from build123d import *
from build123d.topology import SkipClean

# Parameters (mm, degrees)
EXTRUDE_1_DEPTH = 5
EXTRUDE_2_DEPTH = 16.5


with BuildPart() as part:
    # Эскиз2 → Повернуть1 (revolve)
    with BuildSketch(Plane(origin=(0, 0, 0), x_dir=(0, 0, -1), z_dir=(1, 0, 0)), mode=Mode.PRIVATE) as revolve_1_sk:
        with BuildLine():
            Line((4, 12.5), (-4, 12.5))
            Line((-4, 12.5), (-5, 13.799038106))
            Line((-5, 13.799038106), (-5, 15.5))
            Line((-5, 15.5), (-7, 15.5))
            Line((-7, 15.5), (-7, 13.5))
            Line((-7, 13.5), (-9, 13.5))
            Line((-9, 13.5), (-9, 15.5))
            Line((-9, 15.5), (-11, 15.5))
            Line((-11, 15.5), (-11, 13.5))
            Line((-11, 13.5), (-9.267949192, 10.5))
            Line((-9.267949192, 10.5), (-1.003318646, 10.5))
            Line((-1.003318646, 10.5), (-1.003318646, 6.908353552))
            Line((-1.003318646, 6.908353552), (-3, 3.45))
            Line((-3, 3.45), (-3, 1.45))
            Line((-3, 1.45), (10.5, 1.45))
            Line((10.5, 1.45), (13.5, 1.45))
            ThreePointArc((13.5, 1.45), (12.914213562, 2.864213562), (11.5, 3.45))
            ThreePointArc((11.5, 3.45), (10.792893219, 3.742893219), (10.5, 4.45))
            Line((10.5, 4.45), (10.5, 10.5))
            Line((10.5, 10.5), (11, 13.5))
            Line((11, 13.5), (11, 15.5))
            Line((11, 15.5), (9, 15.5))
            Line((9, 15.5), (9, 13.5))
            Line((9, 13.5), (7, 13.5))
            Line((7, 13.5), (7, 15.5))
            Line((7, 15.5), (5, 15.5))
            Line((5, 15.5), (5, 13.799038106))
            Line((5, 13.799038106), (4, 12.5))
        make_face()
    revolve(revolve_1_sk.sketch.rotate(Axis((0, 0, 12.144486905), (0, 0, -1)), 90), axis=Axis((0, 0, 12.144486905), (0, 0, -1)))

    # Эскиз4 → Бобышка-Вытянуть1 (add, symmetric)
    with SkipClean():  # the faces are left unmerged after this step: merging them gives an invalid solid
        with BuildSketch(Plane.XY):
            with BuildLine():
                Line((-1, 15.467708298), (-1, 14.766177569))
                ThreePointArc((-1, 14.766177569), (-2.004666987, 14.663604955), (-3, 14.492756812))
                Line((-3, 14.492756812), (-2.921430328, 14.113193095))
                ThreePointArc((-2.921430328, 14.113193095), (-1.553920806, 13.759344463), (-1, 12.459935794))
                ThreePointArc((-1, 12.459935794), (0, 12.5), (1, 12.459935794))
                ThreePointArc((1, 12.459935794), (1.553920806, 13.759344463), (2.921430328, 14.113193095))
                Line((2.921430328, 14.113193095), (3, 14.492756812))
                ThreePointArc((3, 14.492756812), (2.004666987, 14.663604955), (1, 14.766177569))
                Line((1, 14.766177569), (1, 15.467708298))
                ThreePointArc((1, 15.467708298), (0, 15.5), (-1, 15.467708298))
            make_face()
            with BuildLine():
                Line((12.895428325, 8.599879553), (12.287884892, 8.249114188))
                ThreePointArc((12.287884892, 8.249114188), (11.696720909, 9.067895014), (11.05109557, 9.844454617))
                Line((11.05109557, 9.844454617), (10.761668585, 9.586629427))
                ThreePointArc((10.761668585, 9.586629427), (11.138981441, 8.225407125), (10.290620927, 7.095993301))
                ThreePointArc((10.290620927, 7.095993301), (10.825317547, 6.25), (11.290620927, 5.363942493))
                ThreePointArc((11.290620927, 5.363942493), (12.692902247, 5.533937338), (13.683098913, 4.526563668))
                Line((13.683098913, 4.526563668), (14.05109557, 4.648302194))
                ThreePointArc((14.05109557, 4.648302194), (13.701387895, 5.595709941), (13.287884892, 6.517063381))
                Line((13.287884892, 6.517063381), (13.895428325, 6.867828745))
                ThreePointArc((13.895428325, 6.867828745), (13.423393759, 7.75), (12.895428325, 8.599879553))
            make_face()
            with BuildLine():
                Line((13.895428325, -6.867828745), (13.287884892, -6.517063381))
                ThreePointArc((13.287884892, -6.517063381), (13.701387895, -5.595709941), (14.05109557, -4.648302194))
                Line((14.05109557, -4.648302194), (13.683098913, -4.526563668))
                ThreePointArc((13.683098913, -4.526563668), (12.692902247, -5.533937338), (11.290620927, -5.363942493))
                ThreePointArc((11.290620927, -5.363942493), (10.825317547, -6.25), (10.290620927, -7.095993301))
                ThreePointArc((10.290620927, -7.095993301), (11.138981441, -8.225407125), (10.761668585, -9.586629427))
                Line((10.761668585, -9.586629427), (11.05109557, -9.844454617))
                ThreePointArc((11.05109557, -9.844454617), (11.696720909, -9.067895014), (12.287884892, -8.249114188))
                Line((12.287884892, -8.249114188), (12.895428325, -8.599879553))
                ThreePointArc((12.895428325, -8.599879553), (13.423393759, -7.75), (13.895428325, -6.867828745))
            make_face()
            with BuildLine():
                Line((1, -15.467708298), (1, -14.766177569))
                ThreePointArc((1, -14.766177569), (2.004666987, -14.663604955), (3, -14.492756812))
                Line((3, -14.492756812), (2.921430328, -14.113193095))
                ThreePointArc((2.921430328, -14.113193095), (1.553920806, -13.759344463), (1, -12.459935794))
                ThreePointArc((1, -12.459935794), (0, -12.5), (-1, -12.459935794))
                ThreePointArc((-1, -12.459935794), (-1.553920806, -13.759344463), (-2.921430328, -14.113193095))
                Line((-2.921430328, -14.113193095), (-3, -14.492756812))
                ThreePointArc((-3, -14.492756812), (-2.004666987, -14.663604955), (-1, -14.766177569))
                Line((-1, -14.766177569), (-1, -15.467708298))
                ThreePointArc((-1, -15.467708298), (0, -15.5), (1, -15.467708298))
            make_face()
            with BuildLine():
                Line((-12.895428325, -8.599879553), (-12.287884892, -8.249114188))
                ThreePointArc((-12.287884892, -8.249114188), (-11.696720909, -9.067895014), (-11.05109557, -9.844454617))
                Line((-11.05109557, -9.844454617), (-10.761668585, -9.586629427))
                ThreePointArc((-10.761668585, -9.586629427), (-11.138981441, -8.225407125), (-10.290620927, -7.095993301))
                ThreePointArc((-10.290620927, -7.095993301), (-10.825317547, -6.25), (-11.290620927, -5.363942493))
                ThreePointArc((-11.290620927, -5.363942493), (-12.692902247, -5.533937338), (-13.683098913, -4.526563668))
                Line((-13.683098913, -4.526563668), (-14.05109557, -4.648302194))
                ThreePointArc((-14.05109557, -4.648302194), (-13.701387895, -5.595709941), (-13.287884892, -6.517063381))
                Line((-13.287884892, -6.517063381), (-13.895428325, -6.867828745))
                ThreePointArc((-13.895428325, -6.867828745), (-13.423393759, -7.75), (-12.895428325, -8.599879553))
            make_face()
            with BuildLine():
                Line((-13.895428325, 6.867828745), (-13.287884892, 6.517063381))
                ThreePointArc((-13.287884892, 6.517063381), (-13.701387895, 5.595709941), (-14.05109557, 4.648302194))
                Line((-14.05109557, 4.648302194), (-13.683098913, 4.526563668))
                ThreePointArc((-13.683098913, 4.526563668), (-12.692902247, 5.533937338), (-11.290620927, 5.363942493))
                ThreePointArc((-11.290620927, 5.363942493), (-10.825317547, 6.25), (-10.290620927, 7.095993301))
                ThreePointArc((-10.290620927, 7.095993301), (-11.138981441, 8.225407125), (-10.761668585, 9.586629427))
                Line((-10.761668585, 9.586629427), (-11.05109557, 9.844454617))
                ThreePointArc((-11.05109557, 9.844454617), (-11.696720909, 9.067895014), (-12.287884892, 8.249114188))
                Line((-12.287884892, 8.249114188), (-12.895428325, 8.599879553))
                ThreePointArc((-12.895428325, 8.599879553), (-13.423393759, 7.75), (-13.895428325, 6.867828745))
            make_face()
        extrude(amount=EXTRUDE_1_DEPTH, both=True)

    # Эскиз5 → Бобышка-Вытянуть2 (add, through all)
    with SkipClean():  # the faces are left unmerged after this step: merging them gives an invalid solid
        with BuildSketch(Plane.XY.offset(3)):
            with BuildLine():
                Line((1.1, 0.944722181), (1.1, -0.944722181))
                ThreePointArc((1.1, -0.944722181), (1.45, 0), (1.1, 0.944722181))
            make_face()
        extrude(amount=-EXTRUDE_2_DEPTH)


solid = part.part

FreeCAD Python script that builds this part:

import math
import FreeCAD as App
import Part
import Sketcher

V = App.Vector
Q = App.Units.Quantity

doc = App.newDocument("Part")
body = doc.addObject("PartDesign::Body", "Body")

# Sketch on YZ plane
sketch1 = body.newObject("Sketcher::SketchObject", "Sketch")
sketch1.AttachmentSupport = (doc.getObject("YZ_Plane"), [""])
sketch1.MapMode = "FlatFace"
sketch1.addGeometry(Part.LineSegment(V(12.5, -4, 0), V(12.5, 4, 0)), False)
sketch1.addGeometry(Part.LineSegment(V(12.5, 4, 0), V(13.8, 5, 0)), False)
sketch1.addGeometry(Part.LineSegment(V(13.8, 5, 0), V(15.5, 5, 0)), False)
sketch1.addGeometry(Part.LineSegment(V(15.5, 5, 0), V(15.5, 7, 0)), False)
sketch1.addGeometry(Part.LineSegment(V(15.5, 7, 0), V(13.5, 7, 0)), False)
sketch1.addGeometry(Part.LineSegment(V(13.5, 7, 0), V(13.5, 9, 0)), False)
sketch1.addGeometry(Part.LineSegment(V(13.5, 9, 0), V(15.5, 9, 0)), False)
sketch1.addGeometry(Part.LineSegment(V(15.5, 9, 0), V(15.5, 11, 0)), False)
sketch1.addGeometry(Part.LineSegment(V(15.5, 11, 0), V(13.5, 11, 0)), False)
sketch1.addGeometry(Part.LineSegment(V(13.5, 11, 0), V(10.5, 9.3, 0)), False)
sketch1.addGeometry(Part.LineSegment(V(10.5, 9.3, 0), V(10.5, 1, 0)), False)
sketch1.addGeometry(Part.LineSegment(V(10.5, 1, 0), V(6.9, 1, 0)), False)
sketch1.addGeometry(Part.LineSegment(V(6.9, 1, 0), V(3.5, 3, 0)), False)
sketch1.addGeometry(Part.LineSegment(V(3.5, 3, 0), V(1.4, 3, 0)), False)
sketch1.addGeometry(Part.LineSegment(V(1.4, 3, 0), V(1.4, -13.5, 0)), False)
sketch1.addGeometry(Part.ArcOfCircle(Part.Circle(V(1.4, -11.5, 0), V(0, 0, 1), 2), math.radians(-90), math.radians(0)), False)
sketch1.addGeometry(Part.ArcOfCircle(Part.Circle(V(4.5, -11.5, 0), V(0, 0, 1), 1), math.radians(90), math.radians(180)), False)
sketch1.addGeometry(Part.LineSegment(V(4.5, -10.5, 0), V(10.5, -10.5, 0)), False)
sketch1.addGeometry(Part.LineSegment(V(10.5, -10.5, 0), V(13.5, -11, 0)), False)
sketch1.addGeometry(Part.LineSegment(V(13.5, -11, 0), V(15.5, -11, 0)), False)
sketch1.addGeometry(Part.LineSegment(V(15.5, -11, 0), V(15.5, -9, 0)), False)
sketch1.addGeometry(Part.LineSegment(V(15.5, -9, 0), V(13.5, -9, 0)), False)
sketch1.addGeometry(Part.LineSegment(V(13.5, -9, 0), V(13.5, -7, 0)), False)
sketch1.addGeometry(Part.LineSegment(V(13.5, -7, 0), V(15.5, -7, 0)), False)
sketch1.addGeometry(Part.LineSegment(V(15.5, -7, 0), V(15.5, -5, 0)), False)
sketch1.addGeometry(Part.LineSegment(V(15.5, -5, 0), V(13.8, -5, 0)), False)
sketch1.addGeometry(Part.LineSegment(V(13.8, -5, 0), V(12.5, -4, 0)), False)
sketch1.addConstraint(Sketcher.Constraint("Coincident", 0, 2, 1, 1))
sketch1.addConstraint(Sketcher.Constraint("Coincident", 1, 2, 2, 1))
sketch1.addConstraint(Sketcher.Constraint("Coincident", 2, 2, 3, 1))
sketch1.addConstraint(Sketcher.Constraint("Coincident", 3, 2, 4, 1))
sketch1.addConstraint(Sketcher.Constraint("Coincident", 4, 2, 5, 1))
sketch1.addConstraint(Sketcher.Constraint("Coincident", 5, 2, 6, 1))
sketch1.addConstraint(Sketcher.Constraint("Coincident", 6, 2, 7, 1))
sketch1.addConstraint(Sketcher.Constraint("Coincident", 7, 2, 8, 1))
sketch1.addConstraint(Sketcher.Constraint("Coincident", 8, 2, 9, 1))
sketch1.addConstraint(Sketcher.Constraint("Coincident", 9, 2, 10, 1))
sketch1.addConstraint(Sketcher.Constraint("Coincident", 10, 2, 11, 1))
sketch1.addConstraint(Sketcher.Constraint("Coincident", 11, 2, 12, 1))
sketch1.addConstraint(Sketcher.Constraint("Coincident", 12, 2, 13, 1))
sketch1.addConstraint(Sketcher.Constraint("Coincident", 13, 2, 14, 1))
sketch1.addConstraint(Sketcher.Constraint("Coincident", 14, 2, 15, 1))
sketch1.addConstraint(Sketcher.Constraint("Tangent", 15, 2, 16, 2))
sketch1.addConstraint(Sketcher.Constraint("Tangent", 16, 1, 17, 1))
sketch1.addConstraint(Sketcher.Constraint("Coincident", 17, 2, 18, 1))
sketch1.addConstraint(Sketcher.Constraint("Coincident", 18, 2, 19, 1))
sketch1.addConstraint(Sketcher.Constraint("Coincident", 19, 2, 20, 1))
sketch1.addConstraint(Sketcher.Constraint("Coincident", 20, 2, 21, 1))
sketch1.addConstraint(Sketcher.Constraint("Coincident", 21, 2, 22, 1))
sketch1.addConstraint(Sketcher.Constraint("Coincident", 22, 2, 23, 1))
sketch1.addConstraint(Sketcher.Constraint("Coincident", 23, 2, 24, 1))
sketch1.addConstraint(Sketcher.Constraint("Coincident", 24, 2, 25, 1))
sketch1.addConstraint(Sketcher.Constraint("Coincident", 25, 2, 26, 1))
sketch1.addConstraint(Sketcher.Constraint("Coincident", 26, 2, 0, 1))
sketch1.addConstraint(Sketcher.Constraint("Vertical", 0))
sketch1.addConstraint(Sketcher.Constraint("Horizontal", 2))
sketch1.addConstraint(Sketcher.Constraint("Vertical", 3))
sketch1.addConstraint(Sketcher.Constraint("Horizontal", 4))
sketch1.addConstraint(Sketcher.Constraint("Vertical", 5))
sketch1.addConstraint(Sketcher.Constraint("Horizontal", 6))
sketch1.addConstraint(Sketcher.Constraint("Vertical", 7))
sketch1.addConstraint(Sketcher.Constraint("Horizontal", 8))
sketch1.addConstraint(Sketcher.Constraint("Vertical", 10))
sketch1.addConstraint(Sketcher.Constraint("Horizontal", 11))
sketch1.addConstraint(Sketcher.Constraint("Horizontal", 13))
sketch1.addConstraint(Sketcher.Constraint("Vertical", 14))
sketch1.addConstraint(Sketcher.Constraint("Horizontal", 17))
sketch1.addConstraint(Sketcher.Constraint("Horizontal", 19))
sketch1.addConstraint(Sketcher.Constraint("Vertical", 20))
sketch1.addConstraint(Sketcher.Constraint("Horizontal", 21))
sketch1.addConstraint(Sketcher.Constraint("Vertical", 22))
sketch1.addConstraint(Sketcher.Constraint("Horizontal", 23))
sketch1.addConstraint(Sketcher.Constraint("Vertical", 24))
sketch1.addConstraint(Sketcher.Constraint("Horizontal", 25))
sketch1.addConstraint(Sketcher.Constraint("Symmetric", 8, 2, 18, 2, -1))
sketch1.addConstraint(Sketcher.Constraint("Symmetric", 6, 2, 20, 2, -1))
sketch1.addConstraint(Sketcher.Constraint("Symmetric", 4, 2, 22, 2, -1))
sketch1.addConstraint(Sketcher.Constraint("Symmetric", 2, 2, 24, 2, -1))
sketch1.addConstraint(Sketcher.Constraint("Horizontal", 15, 3, 16, 3))
sketch1.addConstraint(Sketcher.Constraint("Vertical", 3, 2, 6, 2))
sketch1.addConstraint(Sketcher.Constraint("Vertical", 5, 2, 8, 2))
sketch1.addConstraint(Sketcher.Constraint("Vertical", 15, 3, 13, 2))
sketch1.addConstraint(Sketcher.Constraint("Vertical", 12, 2, 15, 2))
sketch1.addConstraint(Sketcher.Constraint("Vertical", 10, 2, 17, 2))
sketch1.addConstraint(Sketcher.Constraint("Vertical", 1, 2, 25, 2))
sketch1.addConstraint(Sketcher.Constraint("Equal", 8, 13))
sketch1.addConstraint(Sketcher.Constraint("Equal", 23, 3))
sketch1.addConstraint(Sketcher.Constraint("Equal", 3, 5))
sketch1.addConstraint(Sketcher.Constraint("Equal", 5, 7))
sketch1.addConstraint(Sketcher.Constraint("Equal", 1, 26))
sketch1.addConstraint(Sketcher.Constraint("Radius", 15, Q("2 mm")))
sketch1.addConstraint(Sketcher.Constraint("Radius", 16, Q("1 mm")))
sketch1.addConstraint(Sketcher.Constraint("DistanceY", 0, 1, 0, 2, Q("8 mm")))
sketch1.addConstraint(Sketcher.Constraint("Angle", 9, Q("-150 deg")))
sketch1.addConstraint(Sketcher.Constraint("Angle", 12, Q("150 deg")))
sketch1.addConstraint(Sketcher.Constraint("DistanceY", 14, 2, 14, 1, Q("16.5 mm")))
sketch1.addConstraint(Sketcher.Constraint("DistanceY", -1, 1, 1, 2, Q("5 mm")))
sketch1.addConstraint(Sketcher.Constraint("DistanceY", -1, 1, 12, 2, Q("3 mm")))
sketch1.addConstraint(Sketcher.Constraint("DistanceX", 0, 2, 2, 2, Q("3 mm")))
sketch1.addConstraint(Sketcher.Constraint("DistanceX", 9, 2, 5, 2, Q("3 mm")))
sketch1.addConstraint(Sketcher.Constraint("DistanceX", 17, 1, 17, 2, Q("6.05 mm")))
sketch1.addConstraint(Sketcher.Constraint("DistanceX", -1, 1, 0, 2, Q("12.5 mm")))
sketch1.addConstraint(Sketcher.Constraint("DistanceX", 2, 1, 2, 2, Q("1.700962 mm")))
sketch1.addConstraint(Sketcher.Constraint("DistanceY", 10, 2, 10, 1, Q("8.264631 mm")))
revolution = body.newObject("PartDesign::Revolution", "Revolution")
revolution.Profile = sketch1
revolution.ReferenceAxis = (sketch1, ["V_Axis"])
revolution.Angle = 360

# Sketch on XY plane
sketch2 = body.newObject("Sketcher::SketchObject", "Sketch001")
sketch2.AttachmentSupport = (doc.getObject("XY_Plane"), [""])
sketch2.MapMode = "FlatFace"
sketch2.addGeometry(Part.LineSegment(V(-1, 15.47, 0), V(-1, 14.77, 0)), False)
sketch2.addGeometry(Part.ArcOfCircle(Part.Circle(V(0, 0, 0), V(0, 0, 1), 14.8), math.radians(93.87), math.radians(101.7)), False)
sketch2.addGeometry(Part.LineSegment(V(-3, 14.49, 0), V(-2.92, 14.11, 0)), False)
sketch2.addGeometry(Part.ArcOfCircle(Part.Circle(V(-2.6, 12.55, 0), V(0, 0, 1), 1.6), math.radians(-3), math.radians(102)), False)
sketch2.addGeometry(Part.ArcOfCircle(Part.Circle(V(0, 0, 0), V(0, 0, 1), 12.5), math.radians(85.41), math.radians(94.59)), False)
sketch2.addGeometry(Part.ArcOfCircle(Part.Circle(V(2.6, 12.55, 0), V(0, 0, 1), 1.6), math.radians(78), math.radians(183)), False)
sketch2.addGeometry(Part.LineSegment(V(2.92, 14.11, 0), V(3, 14.49, 0)), False)
sketch2.addGeometry(Part.ArcOfCircle(Part.Circle(V(0, 0, 0), V(0, 0, 1), 14.8), math.radians(78.3), math.radians(86.13)), False)
sketch2.addGeometry(Part.LineSegment(V(1, 14.77, 0), V(1, 15.47, 0)), False)
sketch2.addGeometry(Part.ArcOfCircle(Part.Circle(V(0, 0, 0), V(0, 0, 1), 15.5), math.radians(86.3), math.radians(93.7)), False)
sketch2.addGeometry(Part.LineSegment(V(12.9, 8.6, 0), V(12.29, 8.25, 0)), False)
sketch2.addGeometry(Part.ArcOfCircle(Part.Circle(V(0, 0, 0), V(0, 0, 1), 14.8), math.radians(33.87), math.radians(41.7)), False)
sketch2.addGeometry(Part.LineSegment(V(11.05, 9.84, 0), V(10.76, 9.59, 0)), False)
sketch2.addGeometry(Part.ArcOfCircle(Part.Circle(V(9.57, 8.52, 0), V(0, 0, 1), 1.6), math.radians(-63), math.radians(42)), False)
sketch2.addGeometry(Part.ArcOfCircle(Part.Circle(V(0, 0, 0), V(0, 0, 1), 12.5), math.radians(25.41), math.radians(34.59)), False)
sketch2.addGeometry(Part.ArcOfCircle(Part.Circle(V(12.16, 4.02, 0), V(0, 0, 1), 1.6), math.radians(18), math.radians(123)), False)
sketch2.addGeometry(Part.LineSegment(V(13.68, 4.53, 0), V(14.05, 4.65, 0)), False)
sketch2.addGeometry(Part.ArcOfCircle(Part.Circle(V(0, 0, 0), V(0, 0, 1), 14.8), math.radians(18.3), math.radians(26.13)), False)
sketch2.addGeometry(Part.LineSegment(V(13.29, 6.52, 0), V(13.9, 6.87, 0)), False)
sketch2.addGeometry(Part.ArcOfCircle(Part.Circle(V(0, 0, 0), V(0, 0, 1), 15.5), math.radians(26.3), math.radians(33.7)), False)
sketch2.addGeometry(Part.LineSegment(V(13.9, -6.87, 0), V(13.29, -6.52, 0)), False)
sketch2.addGeometry(Part.ArcOfCircle(Part.Circle(V(0, 0, 0), V(0, 0, 1), 14.8), math.radians(-26.13), math.radians(-18.3)), False)
sketch2.addGeometry(Part.LineSegment(V(14.05, -4.65, 0), V(13.68, -4.53, 0)), False)
sketch2.addGeometry(Part.ArcOfCircle(Part.Circle(V(12.16, -4.02, 0), V(0, 0, 1), 1.6), math.radians(-123), math.radians(-18)), False)
sketch2.addGeometry(Part.ArcOfCircle(Part.Circle(V(0, 0, 0), V(0, 0, 1), 12.5), math.radians(-34.59), math.radians(-25.41)), False)
sketch2.addGeometry(Part.ArcOfCircle(Part.Circle(V(9.57, -8.52, 0), V(0, 0, 1), 1.6), math.radians(-42), math.radians(63)), False)
sketch2.addGeometry(Part.LineSegment(V(10.76, -9.59, 0), V(11.05, -9.84, 0)), False)
sketch2.addGeometry(Part.ArcOfCircle(Part.Circle(V(0, 0, 0), V(0, 0, 1), 14.8), math.radians(-41.7), math.radians(-33.87)), False)
sketch2.addGeometry(Part.LineSegment(V(12.29, -8.25, 0), V(12.9, -8.6, 0)), False)
sketch2.addGeometry(Part.ArcOfCircle(Part.Circle(V(0, 0, 0), V(0, 0, 1), 15.5), math.radians(-33.7), math.radians(-26.3)), False)
sketch2.addGeometry(Part.LineSegment(V(1, -15.47, 0), V(1, -14.77, 0)), False)
sketch2.addGeometry(Part.ArcOfCircle(Part.Circle(V(0, 0, 0), V(0, 0, 1), 14.8), math.radians(-86.13), math.radians(-78.3)), False)
sketch2.addGeometry(Part.LineSegment(V(3, -14.49, 0), V(2.92, -14.11, 0)), False)
sketch2.addGeometry(Part.ArcOfCircle(Part.Circle(V(2.6, -12.55, 0), V(0, 0, 1), 1.6), math.radians(177), math.radians(282)), False)
sketch2.addGeometry(Part.ArcOfCircle(Part.Circle(V(0, 0, 0), V(0, 0, 1), 12.5), math.radians(-94.59), math.radians(-85.41)), False)
sketch2.addGeometry(Part.ArcOfCircle(Part.Circle(V(-2.6, -12.55, 0), V(0, 0, 1), 1.6), math.radians(-102), math.radians(3)), False)
sketch2.addGeometry(Part.LineSegment(V(-2.92, -14.11, 0), V(-3, -14.49, 0)), False)
sketch2.addGeometry(Part.ArcOfCircle(Part.Circle(V(0, 0, 0), V(0, 0, 1), 14.8), math.radians(-101.7), math.radians(-93.87)), False)
sketch2.addGeometry(Part.LineSegment(V(-1, -14.77, 0), V(-1, -15.47, 0)), False)
sketch2.addGeometry(Part.ArcOfCircle(Part.Circle(V(0, 0, 0), V(0, 0, 1), 15.5), math.radians(-93.7), math.radians(-86.3)), False)
sketch2.addGeometry(Part.LineSegment(V(-12.9, -8.6, 0), V(-12.29, -8.25, 0)), False)
sketch2.addGeometry(Part.ArcOfCircle(Part.Circle(V(0, 0, 0), V(0, 0, 1), 14.8), math.radians(-146.13), math.radians(-138.3)), False)
sketch2.addGeometry(Part.LineSegment(V(-11.05, -9.84, 0), V(-10.76, -9.59, 0)), False)
sketch2.addGeometry(Part.ArcOfCircle(Part.Circle(V(-9.57, -8.52, 0), V(0, 0, 1), 1.6), math.radians(117), math.radians(222)), False)
sketch2.addGeometry(Part.ArcOfCircle(Part.Circle(V(0, 0, 0), V(0, 0, 1), 12.5), math.radians(-154.59), math.radians(-145.41)), False)
sketch2.addGeometry(Part.ArcOfCircle(Part.Circle(V(-12.16, -4.02, 0), V(0, 0, 1), 1.6), math.radians(-162), math.radians(-57)), False)
sketch2.addGeometry(Part.LineSegment(V(-13.68, -4.53, 0), V(-14.05, -4.65, 0)), False)
sketch2.addGeometry(Part.ArcOfCircle(Part.Circle(V(0, 0, 0), V(0, 0, 1), 14.8), math.radians(-161.7), math.radians(-153.87)), False)
sketch2.addGeometry(Part.LineSegment(V(-13.29, -6.52, 0), V(-13.9, -6.87, 0)), False)
sketch2.addGeometry(Part.ArcOfCircle(Part.Circle(V(0, 0, 0), V(0, 0, 1), 15.5), math.radians(-153.7), math.radians(-146.3)), False)
sketch2.addGeometry(Part.LineSegment(V(-13.9, 6.87, 0), V(-13.29, 6.52, 0)), False)
sketch2.addGeometry(Part.ArcOfCircle(Part.Circle(V(0, 0, 0), V(0, 0, 1), 14.8), math.radians(153.87), math.radians(161.7)), False)
sketch2.addGeometry(Part.LineSegment(V(-14.05, 4.65, 0), V(-13.68, 4.53, 0)), False)
sketch2.addGeometry(Part.ArcOfCircle(Part.Circle(V(-12.16, 4.02, 0), V(0, 0, 1), 1.6), math.radians(57), math.radians(162)), False)
sketch2.addGeometry(Part.ArcOfCircle(Part.Circle(V(0, 0, 0), V(0, 0, 1), 12.5), math.radians(145.41), math.radians(154.59)), False)
sketch2.addGeometry(Part.ArcOfCircle(Part.Circle(V(-9.57, 8.52, 0), V(0, 0, 1), 1.6), math.radians(138), math.radians(243)), False)
sketch2.addGeometry(Part.LineSegment(V(-10.76, 9.59, 0), V(-11.05, 9.84, 0)), False)
sketch2.addGeometry(Part.ArcOfCircle(Part.Circle(V(0, 0, 0), V(0, 0, 1), 14.8), math.radians(138.3), math.radians(146.13)), False)
sketch2.addGeometry(Part.LineSegment(V(-12.29, 8.25, 0), V(-12.9, 8.6, 0)), False)
sketch2.addGeometry(Part.ArcOfCircle(Part.Circle(V(0, 0, 0), V(0, 0, 1), 15.5), math.radians(146.3), math.radians(153.7)), False)
sketch2.addConstraint(Sketcher.Constraint("Coincident", 0, 2, 1, 1))
sketch2.addConstraint(Sketcher.Constraint("Coincident", 1, 2, 2, 1))
sketch2.addConstraint(Sketcher.Constraint("Coincident", 2, 2, 3, 2))
sketch2.addConstraint(Sketcher.Constraint("Coincident", 3, 1, 4, 2))
sketch2.addConstraint(Sketcher.Constraint("Coincident", 4, 1, 5, 2))
sketch2.addConstraint(Sketcher.Constraint("Coincident", 5, 1, 6, 1))
sketch2.addConstraint(Sketcher.Constraint("Coincident", 6, 2, 7, 1))
sketch2.addConstraint(Sketcher.Constraint("Coincident", 7, 2, 8, 1))
sketch2.addConstraint(Sketcher.Constraint("Coincident", 8, 2, 9, 1))
sketch2.addConstraint(Sketcher.Constraint("Coincident", 9, 2, 0, 1))
sketch2.addConstraint(Sketcher.Constraint("Coincident", 10, 2, 11, 1))
sketch2.addConstraint(Sketcher.Constraint("Coincident", 11, 2, 12, 1))
sketch2.addConstraint(Sketcher.Constraint("Coincident", 12, 2, 13, 2))
sketch2.addConstraint(Sketcher.Constraint("Coincident", 13, 1, 14, 2))
sketch2.addConstraint(Sketcher.Constraint("Coincident", 14, 1, 15, 2))
sketch2.addConstraint(Sketcher.Constraint("Coincident", 15, 1, 16, 1))
sketch2.addConstraint(Sketcher.Constraint("Coincident", 16, 2, 17, 1))
sketch2.addConstraint(Sketcher.Constraint("Coincident", 17, 2, 18, 1))
sketch2.addConstraint(Sketcher.Constraint("Coincident", 18, 2, 19, 1))
sketch2.addConstraint(Sketcher.Constraint("Coincident", 19, 2, 10, 1))
sketch2.addConstraint(Sketcher.Constraint("Coincident", 20, 2, 21, 1))
sketch2.addConstraint(Sketcher.Constraint("Coincident", 21, 2, 22, 1))
sketch2.addConstraint(Sketcher.Constraint("Coincident", 22, 2, 23, 2))
sketch2.addConstraint(Sketcher.Constraint("Coincident", 23, 1, 24, 2))
sketch2.addConstraint(Sketcher.Constraint("Coincident", 24, 1, 25, 2))
sketch2.addConstraint(Sketcher.Constraint("Coincident", 25, 1, 26, 1))
sketch2.addConstraint(Sketcher.Constraint("Coincident", 26, 2, 27, 1))
sketch2.addConstraint(Sketcher.Constraint("Coincident", 27, 2, 28, 1))
sketch2.addConstraint(Sketcher.Constraint("Coincident", 28, 2, 29, 1))
sketch2.addConstraint(Sketcher.Constraint("Coincident", 29, 2, 20, 1))
sketch2.addConstraint(Sketcher.Constraint("Coincident", 30, 2, 31, 1))
sketch2.addConstraint(Sketcher.Constraint("Coincident", 31, 2, 32, 1))
sketch2.addConstraint(Sketcher.Constraint("Coincident", 32, 2, 33, 2))
sketch2.addConstraint(Sketcher.Constraint("Coincident", 33, 1, 34, 2))
sketch2.addConstraint(Sketcher.Constraint("Coincident", 34, 1, 35, 2))
sketch2.addConstraint(Sketcher.Constraint("Coincident", 35, 1, 36, 1))
sketch2.addConstraint(Sketcher.Constraint("Coincident", 36, 2, 37, 1))
sketch2.addConstraint(Sketcher.Constraint("Coincident", 37, 2, 38, 1))
sketch2.addConstraint(Sketcher.Constraint("Coincident", 38, 2, 39, 1))
sketch2.addConstraint(Sketcher.Constraint("Coincident", 39, 2, 30, 1))
sketch2.addConstraint(Sketcher.Constraint("Coincident", 40, 2, 41, 1))
sketch2.addConstraint(Sketcher.Constraint("Coincident", 41, 2, 42, 1))
sketch2.addConstraint(Sketcher.Constraint("Coincident", 42, 2, 43, 2))
sketch2.addConstraint(Sketcher.Constraint("Coincident", 43, 1, 44, 2))
sketch2.addConstraint(Sketcher.Constraint("Coincident", 44, 1, 45, 2))
sketch2.addConstraint(Sketcher.Constraint("Coincident", 45, 1, 46, 1))
sketch2.addConstraint(Sketcher.Constraint("Coincident", 46, 2, 47, 1))
sketch2.addConstraint(Sketcher.Constraint("Coincident", 47, 2, 48, 1))
sketch2.addConstraint(Sketcher.Constraint("Coincident", 48, 2, 49, 1))
sketch2.addConstraint(Sketcher.Constraint("Coincident", 49, 2, 40, 1))
sketch2.addConstraint(Sketcher.Constraint("Coincident", 50, 2, 51, 1))
sketch2.addConstraint(Sketcher.Constraint("Coincident", 51, 2, 52, 1))
sketch2.addConstraint(Sketcher.Constraint("Coincident", 52, 2, 53, 2))
sketch2.addConstraint(Sketcher.Constraint("Coincident", 53, 1, 54, 2))
sketch2.addConstraint(Sketcher.Constraint("Coincident", 54, 1, 55, 2))
sketch2.addConstraint(Sketcher.Constraint("Coincident", 55, 1, 56, 1))
sketch2.addConstraint(Sketcher.Constraint("Coincident", 56, 2, 57, 1))
sketch2.addConstraint(Sketcher.Constraint("Coincident", 57, 2, 58, 1))
sketch2.addConstraint(Sketcher.Constraint("Coincident", 58, 2, 59, 1))
sketch2.addConstraint(Sketcher.Constraint("Coincident", 59, 2, 50, 1))
sketch2.addConstraint(Sketcher.Constraint("Vertical", 0))
sketch2.addConstraint(Sketcher.Constraint("Vertical", 8))
sketch2.addConstraint(Sketcher.Constraint("Vertical", 30))
sketch2.addConstraint(Sketcher.Constraint("Vertical", 38))
sketch2.addConstraint(Sketcher.Constraint("Coincident", 1, 3, -1, 1))
sketch2.addConstraint(Sketcher.Constraint("Coincident", 4, 3, -1, 1))
sketch2.addConstraint(Sketcher.Constraint("Coincident", 7, 3, -1, 1))
sketch2.addConstraint(Sketcher.Constraint("Coincident", 9, 3, -1, 1))
sketch2.addConstraint(Sketcher.Constraint("Coincident", 11, 3, -1, 1))
sketch2.addConstraint(Sketcher.Constraint("Coincident", 14, 3, -1, 1))
sketch2.addConstraint(Sketcher.Constraint("Coincident", 17, 3, -1, 1))
sketch2.addConstraint(Sketcher.Constraint("Coincident", 19, 3, -1, 1))
sketch2.addConstraint(Sketcher.Constraint("Coincident", 21, 3, -1, 1))
sketch2.addConstraint(Sketcher.Constraint("Coincident", 24, 3, -1, 1))
sketch2.addConstraint(Sketcher.Constraint("Coincident", 27, 3, -1, 1))
sketch2.addConstraint(Sketcher.Constraint("Coincident", 29, 3, -1, 1))
sketch2.addConstraint(Sketcher.Constraint("Coincident", 31, 3, -1, 1))
sketch2.addConstraint(Sketcher.Constraint("Coincident", 34, 3, -1, 1))
sketch2.addConstraint(Sketcher.Constraint("Coincident", 37, 3, -1, 1))
sketch2.addConstraint(Sketcher.Constraint("Coincident", 39, 3, -1, 1))
sketch2.addConstraint(Sketcher.Constraint("Coincident", 41, 3, -1, 1))
sketch2.addConstraint(Sketcher.Constraint("Coincident", 44, 3, -1, 1))
sketch2.addConstraint(Sketcher.Constraint("Coincident", 47, 3, -1, 1))
sketch2.addConstraint(Sketcher.Constraint("Coincident", 49, 3, -1, 1))
sketch2.addConstraint(Sketcher.Constraint("Coincident", 51, 3, -1, 1))
sketch2.addConstraint(Sketcher.Constraint("Coincident", 54, 3, -1, 1))
sketch2.addConstraint(Sketcher.Constraint("Coincident", 57, 3, -1, 1))
sketch2.addConstraint(Sketcher.Constraint("Coincident", 59, 3, -1, 1))
sketch2.addConstraint(Sketcher.Constraint("Equal", 3, 5))
sketch2.addConstraint(Sketcher.Constraint("Equal", 1, 7))
sketch2.addConstraint(Sketcher.Constraint("Equal", 7, 11))
sketch2.addConstraint(Sketcher.Constraint("Equal", 5, 13))
sketch2.addConstraint(Sketcher.Constraint("Equal", 4, 14))
sketch2.addConstraint(Sketcher.Constraint("Equal", 13, 15))
sketch2.addConstraint(Sketcher.Constraint("Equal", 11, 17))
sketch2.addConstraint(Sketcher.Constraint("Equal", 9, 19))
sketch2.addConstraint(Sketcher.Constraint("Equal", 17, 21))
sketch2.addConstraint(Sketcher.Constraint("Equal", 15, 23))
sketch2.addConstraint(Sketcher.Constraint("Equal", 14, 24))
sketch2.addConstraint(Sketcher.Constraint("Equal", 23, 25))
sketch2.addConstraint(Sketcher.Constraint("Equal", 21, 27))
sketch2.addConstraint(Sketcher.Constraint("Equal", 19, 29))
sketch2.addConstraint(Sketcher.Constraint("Equal", 27, 31))
sketch2.addConstraint(Sketcher.Constraint("Equal", 25, 33))
sketch2.addConstraint(Sketcher.Constraint("Equal", 24, 34))
sketch2.addConstraint(Sketcher.Constraint("Equal", 33, 35))
sketch2.addConstraint(Sketcher.Constraint("Equal", 31, 37))
sketch2.addConstraint(Sketcher.Constraint("Equal", 29, 39))
sketch2.addConstraint(Sketcher.Constraint("Equal", 37, 41))
sketch2.addConstraint(Sketcher.Constraint("Equal", 35, 43))
sketch2.addConstraint(Sketcher.Constraint("Equal", 34, 44))
sketch2.addConstraint(Sketcher.Constraint("Equal", 43, 45))
sketch2.addConstraint(Sketcher.Constraint("Equal", 41, 47))
sketch2.addConstraint(Sketcher.Constraint("Equal", 39, 49))
sketch2.addConstraint(Sketcher.Constraint("Equal", 47, 51))
sketch2.addConstraint(Sketcher.Constraint("Equal", 45, 53))
sketch2.addConstraint(Sketcher.Constraint("Equal", 44, 54))
sketch2.addConstraint(Sketcher.Constraint("Equal", 53, 55))
sketch2.addConstraint(Sketcher.Constraint("Equal", 51, 57))
sketch2.addConstraint(Sketcher.Constraint("Equal", 49, 59))
sketch2.addConstraint(Sketcher.Constraint("Symmetric", 3, 3, 33, 3, -1, 1))
sketch2.addConstraint(Sketcher.Constraint("Symmetric", 5, 3, 35, 3, -1, 1))
sketch2.addConstraint(Sketcher.Constraint("Symmetric", 13, 3, 43, 3, -1, 1))
sketch2.addConstraint(Sketcher.Constraint("Symmetric", 15, 3, 45, 3, -1, 1))
sketch2.addConstraint(Sketcher.Constraint("Symmetric", 23, 3, 53, 3, -1, 1))
sketch2.addConstraint(Sketcher.Constraint("Symmetric", 25, 3, 55, 3, -1, 1))
sketch2.addConstraint(Sketcher.Constraint("Symmetric", 3, 3, 5, 3, -2))
sketch2.addConstraint(Sketcher.Constraint("Symmetric", 25, 3, 43, 3, -2))
sketch2.addConstraint(Sketcher.Constraint("Symmetric", 23, 3, 45, 3, -2))
sketch2.addConstraint(Sketcher.Constraint("Parallel", 10, 18))
sketch2.addConstraint(Sketcher.Constraint("Parallel", 20, 28))
sketch2.addConstraint(Sketcher.Constraint("Parallel", 2, 32))
sketch2.addConstraint(Sketcher.Constraint("Parallel", 6, 36))
sketch2.addConstraint(Sketcher.Constraint("Parallel", 18, 40))
sketch2.addConstraint(Sketcher.Constraint("Parallel", 12, 42))
sketch2.addConstraint(Sketcher.Constraint("Parallel", 16, 46))
sketch2.addConstraint(Sketcher.Constraint("Parallel", 40, 48))
sketch2.addConstraint(Sketcher.Constraint("Parallel", 28, 50))
sketch2.addConstraint(Sketcher.Constraint("Parallel", 22, 52))
sketch2.addConstraint(Sketcher.Constraint("Parallel", 26, 56))
sketch2.addConstraint(Sketcher.Constraint("Parallel", 50, 58))
sketch2.addConstraint(Sketcher.Constraint("Horizontal", 2, 2, 5, 1))
sketch2.addConstraint(Sketcher.Constraint("Horizontal", 1, 2, 6, 2))
sketch2.addConstraint(Sketcher.Constraint("Horizontal", 0, 2, 7, 2))
sketch2.addConstraint(Sketcher.Constraint("Horizontal", 32, 2, 35, 1))
sketch2.addConstraint(Sketcher.Constraint("Horizontal", 30, 2, 37, 2))
sketch2.addConstraint(Sketcher.Constraint("Horizontal", 27, 2, 40, 2))
sketch2.addConstraint(Sketcher.Constraint("Horizontal", 26, 2, 41, 2))
sketch2.addConstraint(Sketcher.Constraint("Horizontal", 25, 1, 42, 2))
sketch2.addConstraint(Sketcher.Constraint("Horizontal", 22, 2, 45, 1))
sketch2.addConstraint(Sketcher.Constraint("Horizontal", 21, 2, 46, 2))
sketch2.addConstraint(Sketcher.Constraint("Horizontal", 20, 2, 47, 2))
sketch2.addConstraint(Sketcher.Constraint("Horizontal", 29, 2, 48, 2))
sketch2.addConstraint(Sketcher.Constraint("Horizontal", 17, 2, 50, 2))
sketch2.addConstraint(Sketcher.Constraint("Horizontal", 16, 2, 51, 2))
sketch2.addConstraint(Sketcher.Constraint("Horizontal", 12, 2, 55, 1))
sketch2.addConstraint(Sketcher.Constraint("Horizontal", 10, 2, 57, 2))
sketch2.addConstraint(Sketcher.Constraint("Vertical", 0, 2, 3, 1))
sketch2.addConstraint(Sketcher.Constraint("Vertical", 17, 2, 20, 2))
sketch2.addConstraint(Sketcher.Constraint("Vertical", 16, 2, 21, 2))
sketch2.addConstraint(Sketcher.Constraint("Vertical", 12, 2, 25, 1))
sketch2.addConstraint(Sketcher.Constraint("Vertical", 10, 2, 27, 2))
sketch2.addConstraint(Sketcher.Constraint("Vertical", 8, 2, 30, 2))
sketch2.addConstraint(Sketcher.Constraint("Vertical", 6, 2, 31, 2))
sketch2.addConstraint(Sketcher.Constraint("Equal", 6, 12))
sketch2.addConstraint(Sketcher.Constraint("Equal", 12, 16))
sketch2.addConstraint(Sketcher.Constraint("Equal", 10, 18))
sketch2.addConstraint(Sketcher.Constraint("Radius", 1, Q("14.8 mm")))
sketch2.addConstraint(Sketcher.Constraint("Radius", 4, Q("12.5 mm")))
sketch2.addConstraint(Sketcher.Constraint("Radius", 9, Q("15.5 mm")))
sketch2.addConstraint(Sketcher.Constraint("Angle", 10, Q("-150 deg")))
sketch2.addConstraint(Sketcher.Constraint("DistanceX", 0, 2, -1, 1, Q("1 mm")))
sketch2.addConstraint(Sketcher.Constraint("DistanceX", 1, 2, -1, 1, Q("3 mm")))
sketch2.addConstraint(Sketcher.Constraint("Radius", 3, Q("1.599558 mm")))
sketch2.addConstraint(Sketcher.Constraint("DistanceX", -1, 1, 15, 1, Q("13.683099 mm")))
sketch2.addConstraint(Sketcher.Constraint("Distance", 2, Q("0.38761 mm")))
sketch2.addConstraint(Sketcher.Constraint("DistanceX", -1, 1, 15, 3, Q("12.164481 mm")))
sketch2.addConstraint(Sketcher.Constraint("DistanceX", 2, 2, -1, 1, Q("2.92143 mm")))
sketch2.addConstraint(Sketcher.Constraint("DistanceX", -1, 1, 12, 2, Q("10.761669 mm")))
sketch2.addConstraint(Sketcher.Constraint("DistanceX", -1, 1, 13, 1, Q("10.290621 mm")))
sketch2.addConstraint(Sketcher.Constraint("DistanceX", -1, 1, 18, 2, Q("13.895428 mm")))
sketch2.addConstraint(Sketcher.Constraint("DistanceX", -1, 1, 11, 2, Q("11.051096 mm")))
sketch2.addConstraint(Sketcher.Constraint("DistanceX", -1, 1, 16, 2, Q("14.051096 mm")))
pad1 = body.newObject("PartDesign::Pad", "Pad")
pad1.Profile = sketch2
pad1.Length = 10
pad1.Midplane = True

# Sketch on XY plane
sketch3 = body.newObject("Sketcher::SketchObject", "Sketch002")
sketch3.AttachmentSupport = (doc.getObject("XY_Plane"), [""])
sketch3.MapMode = "FlatFace"
sketch3.AttachmentOffset = App.Placement(V(0, 0, 3), App.Rotation())
sketch3.addGeometry(Part.LineSegment(V(1.1, 0.9, 0), V(1.1, -0.9, 0)), False)
sketch3.addGeometry(Part.ArcOfCircle(Part.Circle(V(0, 0, 0), V(0, 0, 1), 1.4), math.radians(-41), math.radians(41)), False)
sketch3.addConstraint(Sketcher.Constraint("Coincident", 0, 1, 1, 2))
sketch3.addConstraint(Sketcher.Constraint("Coincident", 1, 1, 0, 2))
sketch3.addConstraint(Sketcher.Constraint("Vertical", 0))
sketch3.addConstraint(Sketcher.Constraint("Coincident", 1, 3, -1, 1))
sketch3.addConstraint(Sketcher.Constraint("Radius", 1, Q("1.45 mm")))
sketch3.addConstraint(Sketcher.Constraint("DistanceX", -1, 1, 0, 1, Q("1.1 mm")))
pad2 = body.newObject("PartDesign::Pad", "Pad001")
pad2.Profile = sketch3
pad2.Length = 16.5
pad2.Reversed = True

doc.recompute()
